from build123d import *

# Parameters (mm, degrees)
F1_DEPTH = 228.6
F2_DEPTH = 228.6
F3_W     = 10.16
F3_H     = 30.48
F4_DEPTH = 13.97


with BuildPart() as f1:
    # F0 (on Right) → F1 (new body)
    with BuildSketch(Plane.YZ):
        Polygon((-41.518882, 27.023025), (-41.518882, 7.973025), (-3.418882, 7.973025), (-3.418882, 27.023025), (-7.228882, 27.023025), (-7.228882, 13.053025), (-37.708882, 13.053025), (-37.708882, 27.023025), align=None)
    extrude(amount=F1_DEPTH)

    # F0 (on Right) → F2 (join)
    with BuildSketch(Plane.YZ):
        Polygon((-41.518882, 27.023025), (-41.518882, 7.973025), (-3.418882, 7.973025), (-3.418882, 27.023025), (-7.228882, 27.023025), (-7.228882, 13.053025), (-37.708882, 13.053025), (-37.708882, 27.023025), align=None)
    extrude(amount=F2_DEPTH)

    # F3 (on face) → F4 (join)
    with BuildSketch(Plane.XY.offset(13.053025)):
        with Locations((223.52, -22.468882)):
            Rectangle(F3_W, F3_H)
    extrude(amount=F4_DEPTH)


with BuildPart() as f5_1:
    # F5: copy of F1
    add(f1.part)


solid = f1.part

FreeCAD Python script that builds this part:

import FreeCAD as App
import Part
import Sketcher

V = App.Vector
Q = App.Units.Quantity


def add_polygon(sketch, points):
    """Adds a closed chain of lines whose ends are joined by coincident constraints."""
    first, n = sketch.GeometryCount, len(points)
    for a, b in zip(points, points[1:] + points[:1]):
        sketch.addGeometry(Part.LineSegment(App.Vector(*a, 0), App.Vector(*b, 0)), False)
    for i in range(n):
        sketch.addConstraint(Sketcher.Constraint("Coincident", first + i, 2, first + (i + 1) % n, 1))

doc = App.newDocument("Part")
params = doc.addObject("Spreadsheet::Sheet", "Params")
for row, (alias, value) in enumerate([
    ("sketch1_width", "1.5 in"),
    ("sketch1_width2", "1.2 in"),
    ("sketch1_height", "0.75 in"),
    ("sketch1_height2", "0.55 in"),
    ("pad1_length", "9 in"),
    ("sketch2_width", "1.5 in"),
    ("sketch2_width2", "1.2 in"),
    ("sketch2_height", "0.75 in"),
    ("sketch2_height2", "0.55 in"),
    ("pad2_length", "9 in"),
    ("sketch3_width", "0.4 in"),
    ("sketch3_height", "1.2 in"),
    ("pad3_length", "0.55 in"),
], start=1):
    params.set(f"A{row}", alias)
    params.set(f"B{row}", "=" + value)
    params.setAlias(f"B{row}", alias)

body = doc.addObject("PartDesign::Body", "Body")

sketch1 = body.newObject("Sketcher::SketchObject", "Sketch")
sketch1.AttachmentSupport = (doc.getObject("YZ_Plane"), [""])
sketch1.MapMode = "FlatFace"
add_polygon(sketch1, [(-41.5, 27), (-41.5, 8), (-3.4, 8), (-3.4, 27), (-7.2, 27), (-7.2, 13.1), (-37.7, 13.1), (-37.7, 27)])
sketch1.addConstraint([
    Sketcher.Constraint("Vertical", 0),
    Sketcher.Constraint("Horizontal", 1),
    Sketcher.Constraint("Vertical", 2),
    Sketcher.Constraint("Horizontal", 3),
    Sketcher.Constraint("Vertical", 4),
    Sketcher.Constraint("Horizontal", 5),
    Sketcher.Constraint("Vertical", 6),
    Sketcher.Constraint("Horizontal", 7),
    Sketcher.Constraint("Horizontal", 3, 2, 6, 2),
    Sketcher.Constraint("Equal", 3, 7),
    Sketcher.Constraint("DistanceX", 1, 1, 1, 2, Q("1.5 in")),
    Sketcher.Constraint("DistanceX", 5, 2, 5, 1, Q("1.2 in")),
    Sketcher.Constraint("DistanceY", 0, 2, 0, 1, Q("0.75 in")),
    Sketcher.Constraint("DistanceY", 4, 2, 4, 1, Q("0.55 in")),
    Sketcher.Constraint("DistanceX", 0, 2, -1, 1, 41.518882),
    Sketcher.Constraint("DistanceY", -1, 1, 0, 2, 7.973025),
])
sketch1.setExpression("Constraints[18]", "Params.sketch1_width")
sketch1.setExpression("Constraints[19]", "Params.sketch1_width2")
sketch1.setExpression("Constraints[20]", "Params.sketch1_height")
sketch1.setExpression("Constraints[21]", "Params.sketch1_height2")
pad1 = body.newObject("PartDesign::Pad", "Pad")
pad1.Profile = sketch1
pad1.setExpression("Length", "Params.pad1_length")

sketch2 = body.newObject("Sketcher::SketchObject", "Sketch001")
sketch2.AttachmentSupport = (doc.getObject("YZ_Plane"), [""])
sketch2.MapMode = "FlatFace"
add_polygon(sketch2, [(-41.5, 27), (-41.5, 8), (-3.4, 8), (-3.4, 27), (-7.2, 27), (-7.2, 13.1), (-37.7, 13.1), (-37.7, 27)])
sketch2.addConstraint([
    Sketcher.Constraint("Vertical", 0),
    Sketcher.Constraint("Horizontal", 1),
    Sketcher.Constraint("Vertical", 2),
    Sketcher.Constraint("Horizontal", 3),
    Sketcher.Constraint("Vertical", 4),
    Sketcher.Constraint("Horizontal", 5),
    Sketcher.Constraint("Vertical", 6),
    Sketcher.Constraint("Horizontal", 7),
    Sketcher.Constraint("Horizontal", 3, 2, 6, 2),
    Sketcher.Constraint("Equal", 3, 7),
    Sketcher.Constraint("DistanceX", 1, 1, 1, 2, Q("1.5 in")),
    Sketcher.Constraint("DistanceX", 5, 2, 5, 1, Q("1.2 in")),
    Sketcher.Constraint("DistanceY", 0, 2, 0, 1, Q("0.75 in")),
    Sketcher.Constraint("DistanceY", 4, 2, 4, 1, Q("0.55 in")),
    Sketcher.Constraint("DistanceX", 0, 2, -1, 1, 41.518882),
    Sketcher.Constraint("DistanceY", -1, 1, 0, 2, 7.973025),
])
sketch2.setExpression("Constraints[18]", "Params.sketch2_width")
sketch2.setExpression("Constraints[19]", "Params.sketch2_width2")
sketch2.setExpression("Constraints[20]", "Params.sketch2_height")
sketch2.setExpression("Constraints[21]", "Params.sketch2_height2")
pad2 = body.newObject("PartDesign::Pad", "Pad001")
pad2.Profile = sketch2
pad2.setExpression("Length", "Params.pad2_length")

sketch3 = body.newObject("Sketcher::SketchObject", "Sketch002")
sketch3.AttachmentSupport = (doc.getObject("XY_Plane"), [""])
sketch3.MapMode = "FlatFace"
sketch3.AttachmentOffset = App.Placement(V(0, 0, 13.053025), App.Rotation())
add_polygon(sketch3, [(218, -7), (218, -38), (229, -38), (229, -7)])
sketch3.addConstraint([
    Sketcher.Constraint("Vertical", 0),
    Sketcher.Constraint("Horizontal", 1),
    Sketcher.Constraint("Vertical", 2),
    Sketcher.Constraint("Horizontal", 3),
    Sketcher.Constraint("DistanceX", 1, 1, 1, 2, Q("0.4 in")),
    Sketcher.Constraint("DistanceY", 0, 2, 0, 1, Q("1.2 in")),
    Sketcher.Constraint("DistanceX", -1, 1, 1, 2, Q("9 in")),
    Sketcher.Constraint("DistanceY", 2, 2, -1, 1, 7.228882),
])
sketch3.setExpression("Constraints[8]", "Params.sketch3_width")
sketch3.setExpression("Constraints[9]", "Params.sketch3_height")
pad3 = body.newObject("PartDesign::Pad", "Pad002")
pad3.Profile = sketch3
pad3.setExpression("Length", "Params.pad3_length")
body2 = doc.addObject("PartDesign::Body", "Body001")
doc.recompute()

body2.BaseFeature = body
doc.recompute()
body.Visibility = False

doc.recompute()
